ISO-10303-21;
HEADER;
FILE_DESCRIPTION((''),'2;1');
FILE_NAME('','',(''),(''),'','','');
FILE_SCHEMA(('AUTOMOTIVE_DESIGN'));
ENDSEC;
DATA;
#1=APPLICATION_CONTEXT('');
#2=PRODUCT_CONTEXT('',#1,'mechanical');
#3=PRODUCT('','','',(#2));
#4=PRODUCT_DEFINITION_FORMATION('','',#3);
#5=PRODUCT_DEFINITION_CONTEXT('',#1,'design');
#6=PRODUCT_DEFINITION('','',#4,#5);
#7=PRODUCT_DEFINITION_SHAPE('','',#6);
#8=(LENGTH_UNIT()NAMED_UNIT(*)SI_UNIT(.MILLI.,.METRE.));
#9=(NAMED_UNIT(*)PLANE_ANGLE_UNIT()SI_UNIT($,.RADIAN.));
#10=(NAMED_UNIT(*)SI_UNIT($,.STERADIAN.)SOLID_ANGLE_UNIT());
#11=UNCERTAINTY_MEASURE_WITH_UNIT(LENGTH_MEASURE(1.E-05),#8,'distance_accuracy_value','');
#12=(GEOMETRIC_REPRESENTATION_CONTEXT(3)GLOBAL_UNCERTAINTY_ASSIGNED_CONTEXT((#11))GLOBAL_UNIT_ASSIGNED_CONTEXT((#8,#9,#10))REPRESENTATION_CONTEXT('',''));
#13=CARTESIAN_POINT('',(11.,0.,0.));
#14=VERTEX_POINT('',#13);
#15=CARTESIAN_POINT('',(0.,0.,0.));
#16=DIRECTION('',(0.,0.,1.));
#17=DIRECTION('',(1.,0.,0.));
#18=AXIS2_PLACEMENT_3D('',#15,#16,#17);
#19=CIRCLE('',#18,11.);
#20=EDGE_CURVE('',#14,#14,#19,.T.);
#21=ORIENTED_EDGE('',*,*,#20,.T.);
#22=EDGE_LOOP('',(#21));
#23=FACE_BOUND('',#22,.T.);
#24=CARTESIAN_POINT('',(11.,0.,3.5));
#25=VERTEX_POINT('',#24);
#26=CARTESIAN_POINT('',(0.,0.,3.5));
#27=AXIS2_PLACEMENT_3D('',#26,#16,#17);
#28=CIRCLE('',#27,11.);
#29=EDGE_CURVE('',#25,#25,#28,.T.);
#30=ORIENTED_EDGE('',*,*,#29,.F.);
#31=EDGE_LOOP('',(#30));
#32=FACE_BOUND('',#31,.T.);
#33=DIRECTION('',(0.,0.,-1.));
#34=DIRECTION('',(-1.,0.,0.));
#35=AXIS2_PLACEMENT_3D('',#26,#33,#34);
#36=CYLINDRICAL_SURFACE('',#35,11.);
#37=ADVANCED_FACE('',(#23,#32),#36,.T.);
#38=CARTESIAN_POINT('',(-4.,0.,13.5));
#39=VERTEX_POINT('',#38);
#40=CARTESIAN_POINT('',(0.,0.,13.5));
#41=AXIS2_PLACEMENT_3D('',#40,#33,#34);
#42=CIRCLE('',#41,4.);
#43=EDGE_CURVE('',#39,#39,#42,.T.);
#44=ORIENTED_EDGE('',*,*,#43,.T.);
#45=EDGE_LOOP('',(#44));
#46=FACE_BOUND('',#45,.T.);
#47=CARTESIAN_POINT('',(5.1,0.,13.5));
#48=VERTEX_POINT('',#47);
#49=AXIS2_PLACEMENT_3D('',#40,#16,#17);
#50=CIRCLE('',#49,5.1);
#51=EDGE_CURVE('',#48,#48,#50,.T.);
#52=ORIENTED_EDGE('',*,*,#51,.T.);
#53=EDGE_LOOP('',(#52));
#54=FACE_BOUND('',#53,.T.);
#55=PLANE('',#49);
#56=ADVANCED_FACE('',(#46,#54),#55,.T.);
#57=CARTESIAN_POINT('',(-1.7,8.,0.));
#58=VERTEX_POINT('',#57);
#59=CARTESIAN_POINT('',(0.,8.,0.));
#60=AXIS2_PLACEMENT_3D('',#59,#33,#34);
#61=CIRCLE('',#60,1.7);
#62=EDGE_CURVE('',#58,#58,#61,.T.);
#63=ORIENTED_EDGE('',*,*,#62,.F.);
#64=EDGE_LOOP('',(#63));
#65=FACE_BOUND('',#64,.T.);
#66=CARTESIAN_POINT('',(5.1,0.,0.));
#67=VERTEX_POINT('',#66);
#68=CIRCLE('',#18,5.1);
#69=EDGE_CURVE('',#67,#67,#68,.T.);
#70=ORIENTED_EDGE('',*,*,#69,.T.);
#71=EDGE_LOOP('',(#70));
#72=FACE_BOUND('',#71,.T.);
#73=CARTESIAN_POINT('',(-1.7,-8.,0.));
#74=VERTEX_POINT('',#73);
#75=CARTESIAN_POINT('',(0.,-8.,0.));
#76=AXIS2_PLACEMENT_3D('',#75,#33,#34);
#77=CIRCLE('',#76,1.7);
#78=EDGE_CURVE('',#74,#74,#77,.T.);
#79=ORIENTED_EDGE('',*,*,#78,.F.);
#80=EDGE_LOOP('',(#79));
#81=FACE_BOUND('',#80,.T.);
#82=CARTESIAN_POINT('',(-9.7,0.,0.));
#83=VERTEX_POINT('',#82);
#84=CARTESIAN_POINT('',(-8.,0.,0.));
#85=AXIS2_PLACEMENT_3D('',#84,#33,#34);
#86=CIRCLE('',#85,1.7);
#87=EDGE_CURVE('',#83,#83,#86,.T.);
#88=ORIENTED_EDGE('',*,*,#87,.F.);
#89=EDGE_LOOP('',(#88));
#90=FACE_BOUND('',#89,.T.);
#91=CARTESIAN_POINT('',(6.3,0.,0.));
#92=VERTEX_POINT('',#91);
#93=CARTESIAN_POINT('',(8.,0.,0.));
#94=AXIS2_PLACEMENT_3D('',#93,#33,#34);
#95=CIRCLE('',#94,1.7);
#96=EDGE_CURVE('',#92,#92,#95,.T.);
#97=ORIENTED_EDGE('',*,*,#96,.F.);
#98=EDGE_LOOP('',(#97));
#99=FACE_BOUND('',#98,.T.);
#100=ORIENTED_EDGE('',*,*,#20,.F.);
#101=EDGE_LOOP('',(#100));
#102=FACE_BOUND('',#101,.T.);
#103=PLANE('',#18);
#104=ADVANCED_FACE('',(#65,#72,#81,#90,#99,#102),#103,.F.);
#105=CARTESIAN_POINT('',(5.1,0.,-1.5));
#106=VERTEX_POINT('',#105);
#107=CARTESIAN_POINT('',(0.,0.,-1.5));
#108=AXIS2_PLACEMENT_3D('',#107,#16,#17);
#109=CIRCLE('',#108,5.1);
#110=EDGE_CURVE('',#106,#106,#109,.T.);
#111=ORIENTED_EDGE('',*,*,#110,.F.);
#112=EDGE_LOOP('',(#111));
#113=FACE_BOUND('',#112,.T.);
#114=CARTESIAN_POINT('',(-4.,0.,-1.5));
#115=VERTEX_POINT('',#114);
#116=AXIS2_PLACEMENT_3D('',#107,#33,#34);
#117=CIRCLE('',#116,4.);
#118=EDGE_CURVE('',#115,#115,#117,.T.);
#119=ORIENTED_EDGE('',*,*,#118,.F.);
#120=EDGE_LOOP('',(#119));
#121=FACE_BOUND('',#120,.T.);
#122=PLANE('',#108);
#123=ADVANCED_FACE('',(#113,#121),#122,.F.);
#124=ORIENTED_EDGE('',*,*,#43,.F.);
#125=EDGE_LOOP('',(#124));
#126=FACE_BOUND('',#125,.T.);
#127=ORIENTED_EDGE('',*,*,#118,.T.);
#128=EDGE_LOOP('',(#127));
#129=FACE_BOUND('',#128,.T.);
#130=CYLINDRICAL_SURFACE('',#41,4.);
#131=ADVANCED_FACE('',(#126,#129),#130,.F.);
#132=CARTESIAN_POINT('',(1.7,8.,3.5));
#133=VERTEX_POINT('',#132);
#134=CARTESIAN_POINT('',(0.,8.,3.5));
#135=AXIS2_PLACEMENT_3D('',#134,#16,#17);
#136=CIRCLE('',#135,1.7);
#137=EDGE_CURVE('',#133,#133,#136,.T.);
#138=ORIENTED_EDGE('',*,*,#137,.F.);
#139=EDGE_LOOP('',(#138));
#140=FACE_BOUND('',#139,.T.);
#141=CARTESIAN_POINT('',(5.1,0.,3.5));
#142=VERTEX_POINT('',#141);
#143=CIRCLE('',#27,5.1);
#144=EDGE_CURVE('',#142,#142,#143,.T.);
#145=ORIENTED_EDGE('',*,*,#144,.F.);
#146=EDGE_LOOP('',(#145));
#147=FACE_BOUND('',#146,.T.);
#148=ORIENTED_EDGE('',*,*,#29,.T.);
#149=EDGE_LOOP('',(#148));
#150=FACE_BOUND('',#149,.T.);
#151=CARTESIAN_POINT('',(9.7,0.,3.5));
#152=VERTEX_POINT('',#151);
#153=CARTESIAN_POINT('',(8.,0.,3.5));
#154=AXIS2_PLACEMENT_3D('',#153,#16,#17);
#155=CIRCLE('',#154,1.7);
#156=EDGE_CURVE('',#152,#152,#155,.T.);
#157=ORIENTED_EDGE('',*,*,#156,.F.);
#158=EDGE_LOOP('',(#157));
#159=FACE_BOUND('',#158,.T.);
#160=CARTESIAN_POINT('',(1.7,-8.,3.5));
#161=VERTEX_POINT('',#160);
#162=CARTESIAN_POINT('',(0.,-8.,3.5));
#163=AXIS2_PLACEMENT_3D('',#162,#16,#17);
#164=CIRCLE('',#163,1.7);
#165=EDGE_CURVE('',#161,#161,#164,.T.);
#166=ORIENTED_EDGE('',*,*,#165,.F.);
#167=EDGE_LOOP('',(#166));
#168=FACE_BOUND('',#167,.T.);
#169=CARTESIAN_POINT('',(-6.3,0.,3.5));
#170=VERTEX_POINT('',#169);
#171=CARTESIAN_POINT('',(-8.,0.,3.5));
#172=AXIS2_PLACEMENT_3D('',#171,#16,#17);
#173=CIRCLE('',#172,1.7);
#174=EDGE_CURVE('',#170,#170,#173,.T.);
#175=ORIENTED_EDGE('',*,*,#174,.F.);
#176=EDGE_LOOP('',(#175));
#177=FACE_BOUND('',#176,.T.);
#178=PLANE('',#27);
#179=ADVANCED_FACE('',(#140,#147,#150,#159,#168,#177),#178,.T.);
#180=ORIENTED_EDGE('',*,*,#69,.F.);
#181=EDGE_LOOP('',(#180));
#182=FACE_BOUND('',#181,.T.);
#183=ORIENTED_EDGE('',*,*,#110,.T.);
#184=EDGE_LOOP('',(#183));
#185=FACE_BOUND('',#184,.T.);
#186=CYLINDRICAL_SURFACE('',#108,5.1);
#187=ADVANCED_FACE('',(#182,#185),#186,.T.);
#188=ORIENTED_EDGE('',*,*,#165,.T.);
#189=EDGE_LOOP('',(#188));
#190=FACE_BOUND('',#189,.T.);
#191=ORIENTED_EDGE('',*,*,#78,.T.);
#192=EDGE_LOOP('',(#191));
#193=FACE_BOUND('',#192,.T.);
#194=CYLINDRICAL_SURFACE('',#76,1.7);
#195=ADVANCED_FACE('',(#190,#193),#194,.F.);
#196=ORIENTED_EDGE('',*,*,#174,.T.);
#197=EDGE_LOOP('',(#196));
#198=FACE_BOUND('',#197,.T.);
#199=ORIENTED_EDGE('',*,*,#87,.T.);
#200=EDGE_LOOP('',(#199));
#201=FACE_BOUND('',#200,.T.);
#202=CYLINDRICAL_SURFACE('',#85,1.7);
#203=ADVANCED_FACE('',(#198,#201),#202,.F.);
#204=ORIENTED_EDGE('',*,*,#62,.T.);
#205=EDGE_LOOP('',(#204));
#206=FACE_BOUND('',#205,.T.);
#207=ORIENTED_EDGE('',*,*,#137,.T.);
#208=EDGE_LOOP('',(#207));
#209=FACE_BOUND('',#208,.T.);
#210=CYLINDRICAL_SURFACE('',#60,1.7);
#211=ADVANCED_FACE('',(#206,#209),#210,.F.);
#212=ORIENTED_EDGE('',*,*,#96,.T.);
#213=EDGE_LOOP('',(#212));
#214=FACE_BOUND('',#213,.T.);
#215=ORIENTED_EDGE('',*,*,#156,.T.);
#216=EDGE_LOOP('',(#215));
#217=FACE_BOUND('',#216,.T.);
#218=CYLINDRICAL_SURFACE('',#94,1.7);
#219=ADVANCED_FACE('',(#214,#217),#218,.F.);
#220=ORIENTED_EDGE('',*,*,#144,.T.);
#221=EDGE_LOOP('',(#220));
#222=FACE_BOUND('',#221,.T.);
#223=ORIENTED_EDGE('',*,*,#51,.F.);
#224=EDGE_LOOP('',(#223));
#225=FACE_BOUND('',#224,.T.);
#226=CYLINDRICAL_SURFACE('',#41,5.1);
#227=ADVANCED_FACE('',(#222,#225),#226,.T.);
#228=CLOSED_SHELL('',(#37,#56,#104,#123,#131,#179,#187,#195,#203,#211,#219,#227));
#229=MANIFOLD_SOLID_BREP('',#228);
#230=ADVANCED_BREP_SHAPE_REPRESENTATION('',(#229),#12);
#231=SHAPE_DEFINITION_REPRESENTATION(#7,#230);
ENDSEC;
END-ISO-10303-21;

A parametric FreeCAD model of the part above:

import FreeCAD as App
import Part
import Sketcher
from FreeCAD import Vector
Q = App.Units.Quantity

doc = App.newDocument("Part")
body = doc.addObject("PartDesign::Body", "Body")

# Sketch on XY plane
sketch1 = doc.addObject("Sketcher::SketchObject", "Sketch")
body.addObject(sketch1)
sketch1.AttachmentSupport = (doc.XY_Plane, [""])
sketch1.MapMode = "FlatFace"
sketch1.addGeometry(Part.Circle(Vector(0, 0, 0), Vector(0, 0, 1), 11), False)
sketch1.addConstraint([
    Sketcher.Constraint("Coincident", 0, 3, -1, 1),
    Sketcher.Constraint("Diameter", 0, Q("22 mm")),
])
pad1 = doc.addObject("PartDesign::Pad", "Pad")
body.addObject(pad1)
pad1.Profile = sketch1
pad1.Length = 3.5

# Sketch on XY plane
sketch2 = doc.addObject("Sketcher::SketchObject", "Sketch001")
body.addObject(sketch2)
sketch2.AttachmentSupport = (doc.XY_Plane, [""])
sketch2.MapMode = "FlatFace"
sketch2.AttachmentOffset = App.Placement(Vector(0, 0, 3.5), App.Rotation())
sketch2.addGeometry(Part.Circle(Vector(0, 0, 0), Vector(0, 0, 1), 5.1), False)
sketch2.addConstraint([
    Sketcher.Constraint("Coincident", 0, 3, -1, 1),
    Sketcher.Constraint("Diameter", 0, Q("10.2 mm")),
])
pad2 = doc.addObject("PartDesign::Pad", "Pad001")
body.addObject(pad2)
pad2.Profile = sketch2
pad2.Length = 10

# Sketch on XY plane
sketch3 = doc.addObject("Sketcher::SketchObject", "Sketch002")
body.addObject(sketch3)
sketch3.AttachmentSupport = (doc.XY_Plane, [""])
sketch3.MapMode = "FlatFace"
sketch3.addGeometry(Part.Circle(Vector(0, 0, 0), Vector(0, 0, 1), 5.1), False)
sketch3.addConstraint([
    Sketcher.Constraint("Coincident", 0, 3, -1, 1),
    Sketcher.Constraint("Diameter", 0, Q("10.2 mm")),
])
pad3 = doc.addObject("PartDesign::Pad", "Pad002")
body.addObject(pad3)
pad3.Profile = sketch3
pad3.Length = 1.5
pad3.Reversed = True

# Sketch on XY plane
sketch4 = doc.addObject("Sketcher::SketchObject", "Sketch003")
body.addObject(sketch4)
sketch4.AttachmentSupport = (doc.XY_Plane, [""])
sketch4.MapMode = "FlatFace"
sketch4.AttachmentOffset = App.Placement(Vector(0, 0, -1.5), App.Rotation())
sketch4.addGeometry(Part.Circle(Vector(0, 0, 0), Vector(0, 0, 1), 4), False)
sketch4.addConstraint([
    Sketcher.Constraint("Coincident", 0, 3, -1, 1),
    Sketcher.Constraint("Diameter", 0, Q("8 mm")),
])
pocket1 = doc.addObject("PartDesign::Pocket", "Pocket")
body.addObject(pocket1)
pocket1.Profile = sketch4
pocket1.Type = "ThroughAll"
pocket1.Reversed = True

# Sketch on XY plane
sketch5 = doc.addObject("Sketcher::SketchObject", "Sketch004")
body.addObject(sketch5)
sketch5.AttachmentSupport = (doc.XY_Plane, [""])
sketch5.MapMode = "FlatFace"
sketch5.addGeometry([
    Part.Circle(Vector(8, 0, 0), Vector(0, 0, 1), 1.7),
    Part.Circle(Vector(0, 8, 0), Vector(0, 0, 1), 1.7),
    Part.Circle(Vector(-8, 0, 0), Vector(0, 0, 1), 1.7),
    Part.Circle(Vector(0, -8, 0), Vector(0, 0, 1), 1.7),
], False)
sketch5.addConstraint([
    Sketcher.Constraint("Equal", 0, 1),
    Sketcher.Constraint("Equal", 1, 2),
    Sketcher.Constraint("Equal", 2, 3),
    Sketcher.Constraint("Symmetric", 0, 3, 2, 3, -1, 1),
    Sketcher.Constraint("Symmetric", 1, 3, 3, 3, -1, 1),
    Sketcher.Constraint("PointOnObject", 0, 3, -1),
    Sketcher.Constraint("PointOnObject", 1, 3, -2),
    Sketcher.Constraint("Diameter", 0, Q("3.4 mm")),
    Sketcher.Constraint("DistanceX", -1, 1, 0, 3, Q("8 mm")),
    Sketcher.Constraint("DistanceY", -1, 1, 1, 3, Q("8 mm")),
])
doc.recompute()
hole = doc.addObject("PartDesign::Hole", "Hole")
body.addObject(hole)
hole.Profile = sketch5
hole.ThreadType = "None"
hole.Diameter = 3.4
hole.DepthType = "ThroughAll"
hole.Reversed = True

doc.recompute()
